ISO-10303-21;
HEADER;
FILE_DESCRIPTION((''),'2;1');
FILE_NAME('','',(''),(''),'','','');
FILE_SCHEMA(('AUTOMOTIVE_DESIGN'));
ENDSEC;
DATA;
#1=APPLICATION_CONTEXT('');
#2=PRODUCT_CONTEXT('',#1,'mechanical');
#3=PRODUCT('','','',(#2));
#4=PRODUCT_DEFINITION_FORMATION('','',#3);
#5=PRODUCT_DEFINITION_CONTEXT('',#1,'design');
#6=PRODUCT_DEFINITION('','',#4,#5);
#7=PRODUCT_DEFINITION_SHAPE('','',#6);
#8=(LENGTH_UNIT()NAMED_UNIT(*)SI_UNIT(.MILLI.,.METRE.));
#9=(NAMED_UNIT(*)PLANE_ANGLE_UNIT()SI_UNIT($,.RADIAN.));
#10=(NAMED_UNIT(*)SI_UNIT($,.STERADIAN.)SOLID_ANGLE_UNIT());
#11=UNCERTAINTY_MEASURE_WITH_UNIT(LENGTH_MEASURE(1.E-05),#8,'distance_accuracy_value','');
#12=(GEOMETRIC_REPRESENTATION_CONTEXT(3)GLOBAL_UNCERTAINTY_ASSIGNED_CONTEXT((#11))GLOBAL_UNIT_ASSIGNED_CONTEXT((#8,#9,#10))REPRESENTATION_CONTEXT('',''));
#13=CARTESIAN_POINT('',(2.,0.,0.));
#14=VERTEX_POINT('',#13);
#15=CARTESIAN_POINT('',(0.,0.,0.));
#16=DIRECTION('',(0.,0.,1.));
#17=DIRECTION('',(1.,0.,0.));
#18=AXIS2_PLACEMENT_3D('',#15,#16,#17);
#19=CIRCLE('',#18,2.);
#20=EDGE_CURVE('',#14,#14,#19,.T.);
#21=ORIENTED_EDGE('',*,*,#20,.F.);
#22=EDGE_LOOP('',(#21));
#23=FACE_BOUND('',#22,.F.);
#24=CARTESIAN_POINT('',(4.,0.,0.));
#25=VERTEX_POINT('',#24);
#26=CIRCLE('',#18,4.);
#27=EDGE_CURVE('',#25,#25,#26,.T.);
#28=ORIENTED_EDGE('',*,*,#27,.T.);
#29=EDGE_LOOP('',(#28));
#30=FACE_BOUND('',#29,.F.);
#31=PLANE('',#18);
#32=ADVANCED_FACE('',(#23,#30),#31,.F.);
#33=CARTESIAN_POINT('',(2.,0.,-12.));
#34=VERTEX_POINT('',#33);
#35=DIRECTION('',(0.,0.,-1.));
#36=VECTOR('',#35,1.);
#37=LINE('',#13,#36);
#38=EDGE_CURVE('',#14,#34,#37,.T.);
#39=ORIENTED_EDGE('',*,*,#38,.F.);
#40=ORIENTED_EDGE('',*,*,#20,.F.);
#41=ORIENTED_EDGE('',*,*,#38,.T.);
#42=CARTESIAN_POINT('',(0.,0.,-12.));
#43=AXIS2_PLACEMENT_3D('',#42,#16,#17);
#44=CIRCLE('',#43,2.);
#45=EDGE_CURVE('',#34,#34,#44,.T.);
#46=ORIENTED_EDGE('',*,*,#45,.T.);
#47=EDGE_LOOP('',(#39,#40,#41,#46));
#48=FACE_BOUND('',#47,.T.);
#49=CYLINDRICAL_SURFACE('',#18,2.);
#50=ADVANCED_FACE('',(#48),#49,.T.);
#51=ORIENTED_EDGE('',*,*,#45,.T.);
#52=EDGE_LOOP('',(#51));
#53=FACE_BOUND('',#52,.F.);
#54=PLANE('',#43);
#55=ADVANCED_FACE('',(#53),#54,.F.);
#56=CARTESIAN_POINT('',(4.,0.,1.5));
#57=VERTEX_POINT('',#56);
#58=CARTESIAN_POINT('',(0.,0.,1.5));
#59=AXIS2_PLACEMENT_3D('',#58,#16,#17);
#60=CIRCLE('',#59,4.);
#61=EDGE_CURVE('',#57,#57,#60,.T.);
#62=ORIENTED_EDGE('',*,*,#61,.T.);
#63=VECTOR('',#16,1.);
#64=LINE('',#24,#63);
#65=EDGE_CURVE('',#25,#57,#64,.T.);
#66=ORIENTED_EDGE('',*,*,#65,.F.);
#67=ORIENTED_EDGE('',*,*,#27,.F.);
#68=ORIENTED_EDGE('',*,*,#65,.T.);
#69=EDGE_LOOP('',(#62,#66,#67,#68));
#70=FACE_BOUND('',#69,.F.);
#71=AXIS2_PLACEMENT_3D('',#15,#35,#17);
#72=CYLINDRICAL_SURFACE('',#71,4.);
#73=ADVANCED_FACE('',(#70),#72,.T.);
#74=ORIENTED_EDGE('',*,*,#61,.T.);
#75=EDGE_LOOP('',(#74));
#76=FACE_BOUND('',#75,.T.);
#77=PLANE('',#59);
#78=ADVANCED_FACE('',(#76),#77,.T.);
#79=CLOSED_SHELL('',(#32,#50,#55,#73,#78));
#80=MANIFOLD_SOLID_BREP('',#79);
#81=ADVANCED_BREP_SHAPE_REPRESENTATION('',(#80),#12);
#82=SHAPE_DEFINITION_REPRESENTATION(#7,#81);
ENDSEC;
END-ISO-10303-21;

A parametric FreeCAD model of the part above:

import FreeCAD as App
import Part
import Sketcher
Q = App.Units.Quantity

doc = App.newDocument("Part")
params = doc.addObject("Spreadsheet::Sheet", "Params")
for row, (alias, value) in enumerate([
    ("sketch1_diameter", "8 mm"),
    ("pad1_length", "1.5 mm"),
    ("sketch2_diameter", "4 mm"),
    ("pad2_length", "12 mm"),
], start=1):
    params.set(f"A{row}", alias)
    params.set(f"B{row}", "=" + value)
    params.setAlias(f"B{row}", alias)

body = doc.addObject("PartDesign::Body", "Body")

sketch1 = doc.addObject("Sketcher::SketchObject", "Sketch")
body.addObject(sketch1)
sketch1.AttachmentSupport = (doc.XY_Plane, [""])
sketch1.MapMode = "FlatFace"
sketch1.addGeometry(Part.Circle(App.Vector(0, 0, 0), App.Vector(0, 0, 1), 4), False)
sketch1.addConstraint([
    Sketcher.Constraint("Coincident", 0, 3, -1, 1),
    Sketcher.Constraint("Diameter", 0, Q("8 mm")),
])
sketch1.setExpression("Constraints[1]", "Params.sketch1_diameter")
pad1 = doc.addObject("PartDesign::Pad", "Pad")
body.addObject(pad1)
pad1.Profile = sketch1
pad1.setExpression("Length", "Params.pad1_length")

sketch2 = doc.addObject("Sketcher::SketchObject", "Sketch001")
body.addObject(sketch2)
sketch2.AttachmentSupport = (doc.XY_Plane, [""])
sketch2.MapMode = "FlatFace"
sketch2.addGeometry(Part.Circle(App.Vector(0, 0, 0), App.Vector(0, 0, 1), 2), False)
sketch2.addConstraint([
    Sketcher.Constraint("Coincident", 0, 3, -1, 1),
    Sketcher.Constraint("Diameter", 0, Q("4 mm")),
])
sketch2.setExpression("Constraints[1]", "Params.sketch2_diameter")
pad2 = doc.addObject("PartDesign::Pad", "Pad001")
body.addObject(pad2)
pad2.Profile = sketch2
pad2.setExpression("Length", "Params.pad2_length")
pad2.Reversed = True

doc.recompute()
